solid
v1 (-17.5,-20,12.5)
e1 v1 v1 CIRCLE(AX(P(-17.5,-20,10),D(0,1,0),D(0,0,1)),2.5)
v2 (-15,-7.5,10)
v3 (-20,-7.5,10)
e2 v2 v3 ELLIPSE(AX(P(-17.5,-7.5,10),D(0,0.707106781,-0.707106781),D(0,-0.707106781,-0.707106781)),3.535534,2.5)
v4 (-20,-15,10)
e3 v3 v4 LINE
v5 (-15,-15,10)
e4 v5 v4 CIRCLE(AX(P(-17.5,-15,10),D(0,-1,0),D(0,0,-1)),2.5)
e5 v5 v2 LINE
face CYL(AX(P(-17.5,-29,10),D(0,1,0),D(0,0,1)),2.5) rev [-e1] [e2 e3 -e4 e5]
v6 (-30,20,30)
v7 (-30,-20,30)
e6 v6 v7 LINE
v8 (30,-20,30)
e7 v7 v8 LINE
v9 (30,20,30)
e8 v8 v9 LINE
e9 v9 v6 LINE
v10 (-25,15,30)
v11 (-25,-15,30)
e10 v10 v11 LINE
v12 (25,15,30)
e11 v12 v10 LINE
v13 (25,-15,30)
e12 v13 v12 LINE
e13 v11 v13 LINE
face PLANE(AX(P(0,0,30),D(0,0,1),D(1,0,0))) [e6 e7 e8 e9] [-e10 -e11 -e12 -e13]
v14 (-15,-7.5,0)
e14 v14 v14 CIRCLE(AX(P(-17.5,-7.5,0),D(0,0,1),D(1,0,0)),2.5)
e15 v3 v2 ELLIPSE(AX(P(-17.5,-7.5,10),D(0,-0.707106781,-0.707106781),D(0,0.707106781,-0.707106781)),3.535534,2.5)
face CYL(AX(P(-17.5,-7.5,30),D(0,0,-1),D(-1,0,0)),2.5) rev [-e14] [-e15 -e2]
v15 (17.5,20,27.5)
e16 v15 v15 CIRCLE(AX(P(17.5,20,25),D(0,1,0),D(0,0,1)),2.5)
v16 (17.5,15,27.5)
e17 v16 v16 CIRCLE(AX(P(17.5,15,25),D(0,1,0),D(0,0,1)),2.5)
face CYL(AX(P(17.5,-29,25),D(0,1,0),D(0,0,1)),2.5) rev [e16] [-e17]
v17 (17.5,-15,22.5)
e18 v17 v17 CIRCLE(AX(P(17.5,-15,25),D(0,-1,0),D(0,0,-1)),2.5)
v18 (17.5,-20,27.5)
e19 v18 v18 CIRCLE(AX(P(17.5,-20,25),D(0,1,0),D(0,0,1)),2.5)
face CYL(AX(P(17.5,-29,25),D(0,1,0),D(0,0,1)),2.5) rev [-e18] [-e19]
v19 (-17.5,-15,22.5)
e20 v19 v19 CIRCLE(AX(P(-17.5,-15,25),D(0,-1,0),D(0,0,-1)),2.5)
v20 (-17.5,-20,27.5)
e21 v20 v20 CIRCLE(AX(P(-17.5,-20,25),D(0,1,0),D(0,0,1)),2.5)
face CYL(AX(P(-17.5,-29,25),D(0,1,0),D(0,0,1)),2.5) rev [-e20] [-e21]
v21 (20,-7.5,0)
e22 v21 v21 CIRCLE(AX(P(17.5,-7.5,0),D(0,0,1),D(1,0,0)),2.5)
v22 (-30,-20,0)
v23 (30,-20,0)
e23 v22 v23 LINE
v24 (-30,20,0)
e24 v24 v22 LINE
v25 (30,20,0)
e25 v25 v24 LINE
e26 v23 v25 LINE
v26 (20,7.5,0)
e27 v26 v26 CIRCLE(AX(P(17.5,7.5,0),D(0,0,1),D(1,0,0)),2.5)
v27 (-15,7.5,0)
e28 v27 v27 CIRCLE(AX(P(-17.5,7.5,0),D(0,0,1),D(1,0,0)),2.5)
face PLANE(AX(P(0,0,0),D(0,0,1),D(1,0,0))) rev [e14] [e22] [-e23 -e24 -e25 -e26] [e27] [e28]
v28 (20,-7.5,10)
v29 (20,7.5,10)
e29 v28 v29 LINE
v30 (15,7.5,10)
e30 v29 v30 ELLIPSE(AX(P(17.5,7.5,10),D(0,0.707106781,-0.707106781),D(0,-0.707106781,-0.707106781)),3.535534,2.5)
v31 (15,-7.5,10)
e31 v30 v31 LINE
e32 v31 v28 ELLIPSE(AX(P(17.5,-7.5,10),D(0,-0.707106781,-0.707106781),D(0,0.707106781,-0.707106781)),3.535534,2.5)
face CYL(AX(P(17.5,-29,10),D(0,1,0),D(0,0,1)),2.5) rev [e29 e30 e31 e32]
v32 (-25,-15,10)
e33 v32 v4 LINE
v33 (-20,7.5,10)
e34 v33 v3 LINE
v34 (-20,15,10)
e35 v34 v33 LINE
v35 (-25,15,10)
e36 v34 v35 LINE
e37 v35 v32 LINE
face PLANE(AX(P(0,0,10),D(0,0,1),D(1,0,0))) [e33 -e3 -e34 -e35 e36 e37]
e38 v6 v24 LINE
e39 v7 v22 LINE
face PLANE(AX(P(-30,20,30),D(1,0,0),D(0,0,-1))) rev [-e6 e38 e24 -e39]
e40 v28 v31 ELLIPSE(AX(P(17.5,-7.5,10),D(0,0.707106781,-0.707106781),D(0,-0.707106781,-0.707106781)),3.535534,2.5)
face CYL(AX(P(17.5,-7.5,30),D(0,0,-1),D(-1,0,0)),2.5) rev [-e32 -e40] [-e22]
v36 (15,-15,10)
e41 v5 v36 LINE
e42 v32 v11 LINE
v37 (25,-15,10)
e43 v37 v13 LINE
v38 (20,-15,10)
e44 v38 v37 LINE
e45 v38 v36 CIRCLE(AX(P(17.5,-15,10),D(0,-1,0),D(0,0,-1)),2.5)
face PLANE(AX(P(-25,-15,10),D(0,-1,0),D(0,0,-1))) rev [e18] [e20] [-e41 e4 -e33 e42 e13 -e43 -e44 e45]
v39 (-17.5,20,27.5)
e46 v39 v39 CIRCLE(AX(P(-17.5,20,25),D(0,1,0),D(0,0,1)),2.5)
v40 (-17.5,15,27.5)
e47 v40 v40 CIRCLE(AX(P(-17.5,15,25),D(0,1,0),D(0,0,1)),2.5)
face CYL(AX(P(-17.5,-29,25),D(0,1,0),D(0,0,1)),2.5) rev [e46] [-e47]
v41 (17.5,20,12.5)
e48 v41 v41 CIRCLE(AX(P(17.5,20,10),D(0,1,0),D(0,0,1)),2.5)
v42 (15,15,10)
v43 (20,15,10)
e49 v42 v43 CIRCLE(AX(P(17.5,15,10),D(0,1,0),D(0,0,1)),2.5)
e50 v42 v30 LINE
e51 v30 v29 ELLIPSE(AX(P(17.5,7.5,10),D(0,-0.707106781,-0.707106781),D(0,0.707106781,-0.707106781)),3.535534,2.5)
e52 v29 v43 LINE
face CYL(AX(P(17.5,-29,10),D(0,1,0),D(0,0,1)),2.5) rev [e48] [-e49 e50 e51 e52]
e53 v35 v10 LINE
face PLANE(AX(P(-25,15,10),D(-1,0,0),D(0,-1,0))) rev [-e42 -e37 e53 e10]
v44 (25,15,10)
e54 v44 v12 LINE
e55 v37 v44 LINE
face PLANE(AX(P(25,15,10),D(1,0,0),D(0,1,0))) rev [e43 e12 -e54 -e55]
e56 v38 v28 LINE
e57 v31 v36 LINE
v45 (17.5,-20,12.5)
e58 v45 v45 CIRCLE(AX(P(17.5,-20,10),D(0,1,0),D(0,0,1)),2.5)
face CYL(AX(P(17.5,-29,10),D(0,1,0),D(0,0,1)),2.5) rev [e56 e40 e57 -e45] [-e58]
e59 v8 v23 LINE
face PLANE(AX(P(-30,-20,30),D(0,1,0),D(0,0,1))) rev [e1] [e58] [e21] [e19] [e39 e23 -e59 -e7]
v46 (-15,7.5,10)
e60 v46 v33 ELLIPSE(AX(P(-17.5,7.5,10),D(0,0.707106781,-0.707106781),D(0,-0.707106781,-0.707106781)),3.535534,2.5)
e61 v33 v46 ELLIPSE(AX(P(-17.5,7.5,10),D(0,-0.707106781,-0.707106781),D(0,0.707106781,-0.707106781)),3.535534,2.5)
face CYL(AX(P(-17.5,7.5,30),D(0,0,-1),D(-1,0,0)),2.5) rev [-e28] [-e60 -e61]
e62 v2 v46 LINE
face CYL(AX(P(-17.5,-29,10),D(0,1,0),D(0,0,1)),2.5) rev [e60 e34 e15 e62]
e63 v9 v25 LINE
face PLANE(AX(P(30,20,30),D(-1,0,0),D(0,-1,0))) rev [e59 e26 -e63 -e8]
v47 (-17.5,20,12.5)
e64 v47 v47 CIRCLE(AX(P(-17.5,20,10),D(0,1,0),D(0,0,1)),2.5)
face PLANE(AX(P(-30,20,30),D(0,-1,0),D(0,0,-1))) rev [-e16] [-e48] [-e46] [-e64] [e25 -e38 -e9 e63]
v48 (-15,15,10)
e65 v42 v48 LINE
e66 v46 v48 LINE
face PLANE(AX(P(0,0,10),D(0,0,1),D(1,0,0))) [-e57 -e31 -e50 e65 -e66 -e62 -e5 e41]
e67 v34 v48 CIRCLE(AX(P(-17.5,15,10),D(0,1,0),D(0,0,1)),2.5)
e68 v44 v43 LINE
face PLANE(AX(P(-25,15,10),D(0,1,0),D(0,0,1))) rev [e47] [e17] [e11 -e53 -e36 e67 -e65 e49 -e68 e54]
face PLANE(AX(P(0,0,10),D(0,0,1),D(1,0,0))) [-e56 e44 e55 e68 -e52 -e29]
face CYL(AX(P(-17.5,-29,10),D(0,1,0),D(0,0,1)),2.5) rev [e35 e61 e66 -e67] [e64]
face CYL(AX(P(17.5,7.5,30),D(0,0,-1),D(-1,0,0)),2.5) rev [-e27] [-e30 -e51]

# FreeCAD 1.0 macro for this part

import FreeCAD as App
import Part
import Sketcher

V = App.Vector


def add_polygon(sketch, points):
    """Adds a closed chain of lines whose ends are joined by coincident constraints."""
    first, n = sketch.GeometryCount, len(points)
    for a, b in zip(points, points[1:] + points[:1]):
        sketch.addGeometry(Part.LineSegment(App.Vector(*a, 0), App.Vector(*b, 0)), False)
    for i in range(n):
        sketch.addConstraint(Sketcher.Constraint("Coincident", first + i, 2, first + (i + 1) % n, 1))

doc = App.newDocument("Part")
body = doc.addObject("PartDesign::Body", "Body")

# Sketch on XY plane
sketch1 = doc.addObject("Sketcher::SketchObject", "Sketch")
body.addObject(sketch1)
sketch1.AttachmentSupport = (doc.XY_Plane, [""])
sketch1.MapMode = "FlatFace"
add_polygon(sketch1, [(-30, 20), (-30, -20), (30, -20), (30, 20)])  # lines 0-3
sketch1.addGeometry(Part.Circle(V(-17.5, -7.5, 0), V(0, 0, 1), 2.5), False)  # 4
sketch1.addGeometry(Part.Circle(V(17.5, -7.5, 0), V(0, 0, 1), 2.5), False)  # 5
sketch1.addGeometry(Part.Circle(V(-17.5, 7.5, 0), V(0, 0, 1), 2.5), False)  # 6
sketch1.addGeometry(Part.Circle(V(17.5, 7.5, 0), V(0, 0, 1), 2.5), False)  # 7
sketch1.addConstraint(Sketcher.Constraint("Vertical", 0))
sketch1.addConstraint(Sketcher.Constraint("Horizontal", 1))
sketch1.addConstraint(Sketcher.Constraint("Vertical", 2))
sketch1.addConstraint(Sketcher.Constraint("Horizontal", 3))
sketch1.addConstraint(Sketcher.Constraint("Equal", 4, 5))
sketch1.addConstraint(Sketcher.Constraint("Equal", 5, 6))
sketch1.addConstraint(Sketcher.Constraint("Equal", 6, 7))
sketch1.addConstraint(Sketcher.Constraint("Symmetric", 5, 3, 6, 3, -1, 1))
sketch1.addConstraint(Sketcher.Constraint("Symmetric", 4, 3, 7, 3, -1, 1))
sketch1.addConstraint(Sketcher.Constraint("Symmetric", 0, 2, 2, 2, -1, 1))
sketch1.addConstraint(Sketcher.Constraint("Symmetric", 4, 3, 5, 3, -2))
sketch1.addConstraint(Sketcher.Constraint("Diameter", 4, 5.0))
sketch1.addConstraint(Sketcher.Constraint("DistanceX", 1, 1, 1, 2, 60.0))
sketch1.addConstraint(Sketcher.Constraint("DistanceY", 0, 2, 0, 1, 40.0))
sketch1.addConstraint(Sketcher.Constraint("DistanceX", 4, 3, 5, 3, 35.0))
sketch1.addConstraint(Sketcher.Constraint("DistanceY", 4, 3, 6, 3, 15.0))
pad1 = doc.addObject("PartDesign::Pad", "Pad")
body.addObject(pad1)
pad1.Profile = sketch1
pad1.Length = 30

# Sketch on XY plane
sketch2 = doc.addObject("Sketcher::SketchObject", "Sketch001")
body.addObject(sketch2)
sketch2.AttachmentSupport = (doc.XY_Plane, [""])
sketch2.MapMode = "FlatFace"
sketch2.AttachmentOffset = App.Placement(V(0, 0, 30), App.Rotation())
add_polygon(sketch2, [(-25, 15), (-25, -15), (25, -15), (25, 15)])  # lines 0-3
sketch2.addConstraint(Sketcher.Constraint("Vertical", 0))
sketch2.addConstraint(Sketcher.Constraint("Horizontal", 1))
sketch2.addConstraint(Sketcher.Constraint("Vertical", 2))
sketch2.addConstraint(Sketcher.Constraint("Horizontal", 3))
sketch2.addConstraint(Sketcher.Constraint("Symmetric", 0, 2, 2, 2, -1, 1))
sketch2.addConstraint(Sketcher.Constraint("DistanceX", 1, 1, 1, 2, 50.0))
sketch2.addConstraint(Sketcher.Constraint("DistanceY", 0, 2, 0, 1, 30.0))
pocket1 = doc.addObject("PartDesign::Pocket", "Pocket")
body.addObject(pocket1)
pocket1.Profile = sketch2
pocket1.Length = 20

# Sketch on XZ plane
sketch3 = doc.addObject("Sketcher::SketchObject", "Sketch002")
body.addObject(sketch3)
sketch3.AttachmentSupport = (doc.XZ_Plane, [""])
sketch3.MapMode = "FlatFace"
sketch3.AttachmentOffset = App.Placement(V(0, 0, -20), App.Rotation())
sketch3.addGeometry(Part.Circle(V(-17.5, 10, 0), V(0, 0, 1), 2.5), False)
sketch3.addGeometry(Part.Circle(V(17.5, 10, 0), V(0, 0, 1), 2.5), False)
sketch3.addGeometry(Part.Circle(V(17.5, 25, 0), V(0, 0, 1), 2.5), False)
sketch3.addGeometry(Part.Circle(V(-17.5, 25, 0), V(0, 0, 1), 2.5), False)
sketch3.addConstraint(Sketcher.Constraint("Equal", 0, 1))
sketch3.addConstraint(Sketcher.Constraint("Equal", 1, 2))
sketch3.addConstraint(Sketcher.Constraint("Equal", 2, 3))
sketch3.addConstraint(Sketcher.Constraint("Symmetric", 0, 3, 1, 3, -2))
sketch3.addConstraint(Sketcher.Constraint("Symmetric", 2, 3, 3, 3, -2))
sketch3.addConstraint(Sketcher.Constraint("Vertical", 1, 3, 2, 3))
sketch3.addConstraint(Sketcher.Constraint("Diameter", 0, 5.0))
sketch3.addConstraint(Sketcher.Constraint("DistanceY", -1, 1, 0, 3, 10.0))
sketch3.addConstraint(Sketcher.Constraint("DistanceY", -1, 1, 2, 3, 25.0))
sketch3.addConstraint(Sketcher.Constraint("DistanceX", 0, 3, 1, 3, 35.0))
pocket2 = doc.addObject("PartDesign::Pocket", "Pocket001")
body.addObject(pocket2)
pocket2.Profile = sketch3
pocket2.Length = 49
pocket2.Reversed = True

doc.recompute()
